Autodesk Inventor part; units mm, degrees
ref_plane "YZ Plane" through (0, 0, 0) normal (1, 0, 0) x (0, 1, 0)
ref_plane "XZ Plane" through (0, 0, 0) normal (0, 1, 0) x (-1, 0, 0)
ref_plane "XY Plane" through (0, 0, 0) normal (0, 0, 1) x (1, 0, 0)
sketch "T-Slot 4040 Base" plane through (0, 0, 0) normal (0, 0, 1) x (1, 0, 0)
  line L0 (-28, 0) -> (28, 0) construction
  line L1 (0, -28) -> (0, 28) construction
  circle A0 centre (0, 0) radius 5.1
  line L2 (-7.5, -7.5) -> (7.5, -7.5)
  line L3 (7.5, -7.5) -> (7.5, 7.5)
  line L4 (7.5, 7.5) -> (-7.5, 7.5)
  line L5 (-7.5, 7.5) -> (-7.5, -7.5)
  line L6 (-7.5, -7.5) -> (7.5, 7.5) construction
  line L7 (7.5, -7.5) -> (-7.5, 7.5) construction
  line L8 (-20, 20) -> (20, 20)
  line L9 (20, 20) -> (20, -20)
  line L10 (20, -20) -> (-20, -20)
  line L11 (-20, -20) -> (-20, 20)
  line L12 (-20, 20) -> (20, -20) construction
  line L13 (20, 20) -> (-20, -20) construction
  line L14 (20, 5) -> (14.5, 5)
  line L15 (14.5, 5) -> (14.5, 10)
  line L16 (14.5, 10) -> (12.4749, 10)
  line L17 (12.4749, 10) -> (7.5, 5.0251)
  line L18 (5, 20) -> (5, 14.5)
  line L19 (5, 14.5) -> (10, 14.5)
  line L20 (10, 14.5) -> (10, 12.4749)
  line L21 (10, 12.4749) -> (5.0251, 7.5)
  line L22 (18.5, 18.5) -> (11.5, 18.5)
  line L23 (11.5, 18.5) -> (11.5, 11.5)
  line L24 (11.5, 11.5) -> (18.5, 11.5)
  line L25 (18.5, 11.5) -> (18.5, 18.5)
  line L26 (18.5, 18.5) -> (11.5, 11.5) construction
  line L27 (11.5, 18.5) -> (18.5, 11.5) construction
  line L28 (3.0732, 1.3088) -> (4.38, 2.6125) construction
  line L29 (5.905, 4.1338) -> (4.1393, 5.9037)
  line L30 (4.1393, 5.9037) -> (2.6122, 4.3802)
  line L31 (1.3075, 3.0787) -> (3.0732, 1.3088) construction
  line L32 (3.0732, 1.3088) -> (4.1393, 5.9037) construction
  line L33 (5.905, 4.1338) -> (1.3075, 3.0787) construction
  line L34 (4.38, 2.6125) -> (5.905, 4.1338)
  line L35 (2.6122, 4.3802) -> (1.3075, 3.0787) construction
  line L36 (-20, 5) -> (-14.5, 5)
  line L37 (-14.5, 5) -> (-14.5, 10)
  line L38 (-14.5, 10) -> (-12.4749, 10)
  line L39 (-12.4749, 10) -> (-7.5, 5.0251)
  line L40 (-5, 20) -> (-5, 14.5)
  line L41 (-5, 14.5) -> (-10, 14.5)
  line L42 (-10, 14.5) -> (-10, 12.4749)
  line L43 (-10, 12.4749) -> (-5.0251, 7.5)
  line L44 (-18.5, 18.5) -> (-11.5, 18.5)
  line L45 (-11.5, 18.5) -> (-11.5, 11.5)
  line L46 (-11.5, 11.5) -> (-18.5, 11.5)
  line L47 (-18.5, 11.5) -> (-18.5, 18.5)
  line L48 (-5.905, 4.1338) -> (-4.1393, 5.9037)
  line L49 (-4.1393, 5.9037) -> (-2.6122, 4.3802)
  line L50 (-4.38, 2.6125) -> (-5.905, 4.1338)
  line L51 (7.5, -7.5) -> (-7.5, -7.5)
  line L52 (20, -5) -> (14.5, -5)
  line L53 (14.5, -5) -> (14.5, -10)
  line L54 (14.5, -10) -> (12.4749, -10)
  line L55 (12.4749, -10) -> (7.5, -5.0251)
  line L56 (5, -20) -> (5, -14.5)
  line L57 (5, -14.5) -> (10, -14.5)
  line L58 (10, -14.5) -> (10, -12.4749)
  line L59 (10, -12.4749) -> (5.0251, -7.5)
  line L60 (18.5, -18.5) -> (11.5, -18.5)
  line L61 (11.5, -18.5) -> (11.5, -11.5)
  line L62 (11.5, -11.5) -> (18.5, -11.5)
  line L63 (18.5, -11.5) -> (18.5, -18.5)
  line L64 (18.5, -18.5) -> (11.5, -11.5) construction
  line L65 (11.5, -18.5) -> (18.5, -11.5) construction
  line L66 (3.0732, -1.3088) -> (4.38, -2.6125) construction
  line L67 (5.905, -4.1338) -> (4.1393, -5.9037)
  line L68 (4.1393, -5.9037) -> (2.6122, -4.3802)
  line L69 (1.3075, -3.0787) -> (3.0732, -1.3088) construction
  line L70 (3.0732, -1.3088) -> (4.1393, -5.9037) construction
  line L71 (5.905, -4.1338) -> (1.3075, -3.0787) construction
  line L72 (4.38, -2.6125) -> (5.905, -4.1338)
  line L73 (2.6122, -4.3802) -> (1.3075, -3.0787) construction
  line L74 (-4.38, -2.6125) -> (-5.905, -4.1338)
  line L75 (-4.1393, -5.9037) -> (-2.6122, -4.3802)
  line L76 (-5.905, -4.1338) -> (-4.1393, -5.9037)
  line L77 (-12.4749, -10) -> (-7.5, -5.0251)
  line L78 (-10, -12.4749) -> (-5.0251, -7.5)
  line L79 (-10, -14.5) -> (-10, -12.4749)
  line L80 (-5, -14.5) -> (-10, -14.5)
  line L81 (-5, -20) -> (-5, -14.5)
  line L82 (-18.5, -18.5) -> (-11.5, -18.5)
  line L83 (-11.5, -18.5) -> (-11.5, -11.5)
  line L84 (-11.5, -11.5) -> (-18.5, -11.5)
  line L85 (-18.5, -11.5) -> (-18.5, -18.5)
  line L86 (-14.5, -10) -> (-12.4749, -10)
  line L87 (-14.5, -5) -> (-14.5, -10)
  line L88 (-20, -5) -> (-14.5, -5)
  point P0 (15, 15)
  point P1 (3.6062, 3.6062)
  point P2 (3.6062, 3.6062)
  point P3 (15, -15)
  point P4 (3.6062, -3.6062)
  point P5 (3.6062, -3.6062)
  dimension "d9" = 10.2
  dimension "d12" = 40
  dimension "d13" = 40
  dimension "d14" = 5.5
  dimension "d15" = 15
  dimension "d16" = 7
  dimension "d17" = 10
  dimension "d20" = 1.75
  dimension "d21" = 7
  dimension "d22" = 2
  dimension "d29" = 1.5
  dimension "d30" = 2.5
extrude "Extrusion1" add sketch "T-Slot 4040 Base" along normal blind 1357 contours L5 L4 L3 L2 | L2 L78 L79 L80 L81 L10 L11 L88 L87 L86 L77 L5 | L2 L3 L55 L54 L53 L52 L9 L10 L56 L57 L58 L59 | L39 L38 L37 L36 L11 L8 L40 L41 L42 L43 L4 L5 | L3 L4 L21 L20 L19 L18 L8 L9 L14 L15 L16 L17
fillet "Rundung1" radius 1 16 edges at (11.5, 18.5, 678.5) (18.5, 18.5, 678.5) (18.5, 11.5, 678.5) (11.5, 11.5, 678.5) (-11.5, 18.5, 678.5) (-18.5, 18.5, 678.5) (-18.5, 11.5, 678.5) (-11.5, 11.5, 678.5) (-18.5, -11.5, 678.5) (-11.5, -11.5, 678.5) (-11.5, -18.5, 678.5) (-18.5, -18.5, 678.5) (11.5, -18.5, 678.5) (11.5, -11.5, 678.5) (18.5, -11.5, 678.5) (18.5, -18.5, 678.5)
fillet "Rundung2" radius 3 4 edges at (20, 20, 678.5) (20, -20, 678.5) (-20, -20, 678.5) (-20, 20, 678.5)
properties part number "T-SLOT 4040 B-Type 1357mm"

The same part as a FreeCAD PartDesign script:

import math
import FreeCAD as App
import Part
import Sketcher
Q = App.Units.Quantity


def edges_at(feature, points):
    """Names of the edges that pass closest to the given points."""
    edges = feature.Shape.Edges
    near = lambda p: min(range(len(edges)), key=lambda i: edges[i].distToShape(Part.Vertex(*p))[0])
    return sorted({f"Edge{near(p) + 1}" for p in points})


def add_polygon(sketch, points):
    """Adds a closed chain of lines whose ends are joined by coincident constraints."""
    first, n = sketch.GeometryCount, len(points)
    for a, b in zip(points, points[1:] + points[:1]):
        sketch.addGeometry(Part.LineSegment(App.Vector(*a, 0), App.Vector(*b, 0)), False)
    for i in range(n):
        sketch.addConstraint(Sketcher.Constraint("Coincident", first + i, 2, first + (i + 1) % n, 1))

doc = App.newDocument("Part")
body = doc.addObject("PartDesign::Body", "Body")

sketch1 = body.newObject("Sketcher::SketchObject", "Sketch")
sketch1.AttachmentSupport = (doc.getObject("XY_Plane"), [""])
sketch1.MapMode = "FlatFace"
add_polygon(sketch1, [(-7.5, 5), (-7.5, -5), (-12.5, -10), (-14.5, -10), (-14.5, -5), (-20, -5), (-20, -20), (-5, -20), (-5, -14.5), (-10, -14.5), (-10, -12.5), (-5, -7.5), (5, -7.5), (10, -12.5), (10, -14.5), (5, -14.5), (5, -20), (20, -20), (20, -5), (14.5, -5), (14.5, -10), (12.5, -10), (7.5, -5), (7.5, 5), (12.5, 10), (14.5, 10), (14.5, 5), (20, 5), (20, 20), (5, 20), (5, 14.5), (10, 14.5), (10, 12.5), (5, 7.5), (-5, 7.5), (-10, 12.5), (-10, 14.5), (-5, 14.5), (-5, 20), (-20, 20), (-20, 5), (-14.5, 5), (-14.5, 10), (-12.5, 10)])
sketch1.addGeometry(Part.ArcOfCircle(Part.Circle(App.Vector(0, 0, 0), App.Vector(0, 0, 1), 5.1), math.radians(-31), math.radians(31)), False)
sketch1.addGeometry(Part.LineSegment(App.Vector(4.4, -2.6, 0), App.Vector(5.9, -4.1, 0)), False)
sketch1.addGeometry(Part.LineSegment(App.Vector(5.9, -4.1, 0), App.Vector(4.1, -5.9, 0)), False)
sketch1.addGeometry(Part.LineSegment(App.Vector(4.1, -5.9, 0), App.Vector(2.6, -4.4, 0)), False)
sketch1.addGeometry(Part.ArcOfCircle(Part.Circle(App.Vector(0, 0, 0), App.Vector(0, 0, 1), 5.1), math.radians(-121), math.radians(-59)), False)
sketch1.addGeometry(Part.LineSegment(App.Vector(-2.6, -4.4, 0), App.Vector(-4.1, -5.9, 0)), False)
sketch1.addGeometry(Part.LineSegment(App.Vector(-4.1, -5.9, 0), App.Vector(-5.9, -4.1, 0)), False)
sketch1.addGeometry(Part.LineSegment(App.Vector(-5.9, -4.1, 0), App.Vector(-4.4, -2.6, 0)), False)
sketch1.addGeometry(Part.ArcOfCircle(Part.Circle(App.Vector(0, 0, 0), App.Vector(0, 0, 1), 5.1), math.radians(149), math.radians(211)), False)
sketch1.addGeometry(Part.LineSegment(App.Vector(-4.4, 2.6, 0), App.Vector(-5.9, 4.1, 0)), False)
sketch1.addGeometry(Part.LineSegment(App.Vector(-5.9, 4.1, 0), App.Vector(-4.1, 5.9, 0)), False)
sketch1.addGeometry(Part.LineSegment(App.Vector(-4.1, 5.9, 0), App.Vector(-2.6, 4.4, 0)), False)
sketch1.addGeometry(Part.ArcOfCircle(Part.Circle(App.Vector(0, 0, 0), App.Vector(0, 0, 1), 5.1), math.radians(59), math.radians(121)), False)
sketch1.addGeometry(Part.LineSegment(App.Vector(2.6, 4.4, 0), App.Vector(4.1, 5.9, 0)), False)
sketch1.addGeometry(Part.LineSegment(App.Vector(4.1, 5.9, 0), App.Vector(5.9, 4.1, 0)), False)
sketch1.addGeometry(Part.LineSegment(App.Vector(5.9, 4.1, 0), App.Vector(4.4, 2.6, 0)), False)
add_polygon(sketch1, [(-18.5, -11.5), (-11.5, -11.5), (-11.5, -18.5), (-18.5, -18.5)])
add_polygon(sketch1, [(-11.5, 18.5), (-11.5, 11.5), (-18.5, 11.5), (-18.5, 18.5)])
add_polygon(sketch1, [(18.5, 11.5), (11.5, 11.5), (11.5, 18.5), (18.5, 18.5)])
add_polygon(sketch1, [(11.5, -18.5), (11.5, -11.5), (18.5, -11.5), (18.5, -18.5)])
sketch1.addConstraint([
    Sketcher.Constraint("Coincident", 44, 1, 45, 1),
    Sketcher.Constraint("Coincident", 45, 2, 46, 1),
    Sketcher.Constraint("Coincident", 46, 2, 47, 1),
    Sketcher.Constraint("Coincident", 47, 2, 48, 2),
    Sketcher.Constraint("Coincident", 48, 1, 49, 1),
    Sketcher.Constraint("Coincident", 49, 2, 50, 1),
    Sketcher.Constraint("Coincident", 50, 2, 51, 1),
    Sketcher.Constraint("Coincident", 51, 2, 52, 2),
    Sketcher.Constraint("Coincident", 52, 1, 53, 1),
    Sketcher.Constraint("Coincident", 53, 2, 54, 1),
    Sketcher.Constraint("Coincident", 54, 2, 55, 1),
    Sketcher.Constraint("Coincident", 55, 2, 56, 2),
    Sketcher.Constraint("Coincident", 56, 1, 57, 1),
    Sketcher.Constraint("Coincident", 57, 2, 58, 1),
    Sketcher.Constraint("Coincident", 58, 2, 59, 1),
    Sketcher.Constraint("Coincident", 59, 2, 44, 2),
    Sketcher.Constraint("Vertical", 0),
    Sketcher.Constraint("Horizontal", 2),
    Sketcher.Constraint("Vertical", 3),
    Sketcher.Constraint("Horizontal", 4),
    Sketcher.Constraint("Vertical", 5),
    Sketcher.Constraint("Horizontal", 6),
    Sketcher.Constraint("Vertical", 7),
    Sketcher.Constraint("Horizontal", 8),
    Sketcher.Constraint("Vertical", 9),
    Sketcher.Constraint("Horizontal", 11),
    Sketcher.Constraint("Vertical", 13),
    Sketcher.Constraint("Horizontal", 14),
    Sketcher.Constraint("Vertical", 15),
    Sketcher.Constraint("Horizontal", 16),
    Sketcher.Constraint("Vertical", 17),
    Sketcher.Constraint("Horizontal", 18),
    Sketcher.Constraint("Vertical", 19),
    Sketcher.Constraint("Horizontal", 20),
    Sketcher.Constraint("Vertical", 22),
    Sketcher.Constraint("Horizontal", 24),
    Sketcher.Constraint("Vertical", 25),
    Sketcher.Constraint("Horizontal", 26),
    Sketcher.Constraint("Vertical", 27),
    Sketcher.Constraint("Horizontal", 28),
    Sketcher.Constraint("Vertical", 29),
    Sketcher.Constraint("Horizontal", 30),
    Sketcher.Constraint("Vertical", 31),
    Sketcher.Constraint("Horizontal", 33),
    Sketcher.Constraint("Vertical", 35),
    Sketcher.Constraint("Horizontal", 36),
    Sketcher.Constraint("Vertical", 37),
    Sketcher.Constraint("Horizontal", 38),
    Sketcher.Constraint("Vertical", 39),
    Sketcher.Constraint("Horizontal", 40),
    Sketcher.Constraint("Vertical", 41),
    Sketcher.Constraint("Horizontal", 42),
    Sketcher.Constraint("Horizontal", 60),
    Sketcher.Constraint("Vertical", 61),
    Sketcher.Constraint("Horizontal", 62),
    Sketcher.Constraint("Vertical", 63),
    Sketcher.Constraint("Vertical", 64),
    Sketcher.Constraint("Horizontal", 65),
    Sketcher.Constraint("Vertical", 66),
    Sketcher.Constraint("Horizontal", 67),
    Sketcher.Constraint("Horizontal", 68),
    Sketcher.Constraint("Vertical", 69),
    Sketcher.Constraint("Horizontal", 70),
    Sketcher.Constraint("Vertical", 71),
    Sketcher.Constraint("Vertical", 72),
    Sketcher.Constraint("Horizontal", 73),
    Sketcher.Constraint("Vertical", 74),
    Sketcher.Constraint("Horizontal", 75),
    Sketcher.Constraint("Coincident", 44, 3, -1, 1),
    Sketcher.Constraint("Coincident", 48, 3, -1, 1),
    Sketcher.Constraint("Coincident", 52, 3, -1, 1),
    Sketcher.Constraint("Coincident", 56, 3, -1, 1),
    Sketcher.Constraint("Equal", 44, 48),
    Sketcher.Constraint("Equal", 48, 52),
    Sketcher.Constraint("Equal", 52, 56),
    Sketcher.Constraint("Symmetric", 0, 2, 22, 2, -1, 1),
    Sketcher.Constraint("Symmetric", 1, 2, 23, 2, -1, 1),
    Sketcher.Constraint("Symmetric", 3, 2, 25, 2, -1, 1),
    Sketcher.Constraint("Symmetric", 5, 2, 27, 2, -1, 1),
    Sketcher.Constraint("Symmetric", 7, 2, 29, 2, -1, 1),
    Sketcher.Constraint("Symmetric", 9, 2, 31, 2, -1, 1),
    Sketcher.Constraint("Symmetric", 10, 2, 32, 2, -1, 1),
    Sketcher.Constraint("Symmetric", 12, 2, 34, 2, -1, 1),
    Sketcher.Constraint("Symmetric", 14, 2, 36, 2, -1, 1),
    Sketcher.Constraint("Symmetric", 16, 2, 38, 2, -1, 1),
    Sketcher.Constraint("Symmetric", 18, 2, 40, 2, -1, 1),
    Sketcher.Constraint("Symmetric", 20, 2, 42, 2, -1, 1),
    Sketcher.Constraint("Symmetric", 45, 2, 53, 2, -1, 1),
    Sketcher.Constraint("Symmetric", 46, 2, 54, 2, -1, 1),
    Sketcher.Constraint("Symmetric", 49, 2, 57, 2, -1, 1),
    Sketcher.Constraint("Symmetric", 50, 2, 58, 2, -1, 1),
    Sketcher.Constraint("Symmetric", 60, 2, 68, 2, -1, 1),
    Sketcher.Constraint("Symmetric", 62, 2, 70, 2, -1, 1),
    Sketcher.Constraint("Symmetric", 64, 2, 72, 2, -1, 1),
    Sketcher.Constraint("Symmetric", 66, 2, 74, 2, -1, 1),
    Sketcher.Constraint("Symmetric", 9, 2, 12, 2, -2),
    Sketcher.Constraint("Symmetric", 7, 2, 14, 2, -2),
    Sketcher.Constraint("Symmetric", 5, 2, 16, 2, -2),
    Sketcher.Constraint("Symmetric", 3, 2, 18, 2, -2),
    Sketcher.Constraint("Symmetric", 1, 2, 20, 2, -2),
    Sketcher.Constraint("Symmetric", 46, 2, 49, 2, -2),
    Sketcher.Constraint("Symmetric", 45, 2, 50, 2, -2),
    Sketcher.Constraint("Symmetric", 64, 2, 68, 2, -2),
    Sketcher.Constraint("Symmetric", 66, 2, 70, 2, -2),
    Sketcher.Constraint("Parallel", 1, 10),
    Sketcher.Constraint("Perpendicular", 10, 12),
    Sketcher.Constraint("Parallel", 12, 21),
    Sketcher.Constraint("Perpendicular", 32, 34),
    Sketcher.Constraint("Parallel", 34, 43),
    Sketcher.Constraint("Perpendicular", 45, 46),
    Sketcher.Constraint("Perpendicular", 46, 47),
    Sketcher.Constraint("Perpendicular", 49, 50),
    Sketcher.Constraint("Perpendicular", 50, 51),
    Sketcher.Constraint("Parallel", 47, 53),
    Sketcher.Constraint("Perpendicular", 54, 55),
    Sketcher.Constraint("Parallel", 51, 57),
    Sketcher.Constraint("Perpendicular", 58, 59),
    Sketcher.Constraint("Horizontal", 0, 2, 21, 2),
    Sketcher.Constraint("Equal", 33, 0),
    Sketcher.Constraint("Equal", 36, 3),
    Sketcher.Constraint("Equal", 38, 5),
    Sketcher.Constraint("Equal", 40, 7),
    Sketcher.Constraint("Equal", 42, 9),
    Sketcher.Constraint("Equal", 75, 61),
    Sketcher.Constraint("Equal", 1, 10),
    Sketcher.Constraint("Radius", 44, Q("5.1 mm")),
    Sketcher.Constraint("DistanceX", 6, 1, 6, 2, Q("15 mm")),
    Sketcher.Constraint("DistanceX", 60, 1, 60, 2, Q("7 mm")),
    Sketcher.Constraint("DistanceX", 4, 2, 4, 1, Q("5.5 mm")),
    Sketcher.Constraint("DistanceY", 1, 2, -1, 1, Q("10 mm")),
    Sketcher.Constraint("Distance", 46, Q("2.5 mm")),
    Sketcher.Constraint("DistanceX", 8, 2, 8, 1, Q("5 mm")),
    Sketcher.Constraint("DistanceX", 0, 2, -1, 1, Q("7.5 mm")),
    Sketcher.Constraint("DistanceX", 60, 2, -1, 1, Q("11.5 mm")),
    Sketcher.Constraint("DistanceY", 60, 2, -1, 1, Q("11.5 mm")),
    Sketcher.Constraint("Angle", 45, Q("-44.9304 deg")),
    Sketcher.Constraint("DistanceX", 2, 2, 2, 1, Q("2.025 mm")),
    Sketcher.Constraint("DistanceX", -1, 1, 44, 1, Q("4.38 mm")),
    Sketcher.Constraint("Distance", 45, Q("2.154 mm")),
])
pad1 = body.newObject("PartDesign::Pad", "Pad")
pad1.Profile = sketch1
pad1.Length = 1357
doc.recompute()

fillet = body.newObject("PartDesign::Fillet", "Fillet")
fillet.Base = (pad1, edges_at(pad1, [
    (11.5, 18.5, 678.5),
    (18.5, 18.5, 678.5),
    (18.5, 11.5, 678.5),
    (11.5, 11.5, 678.5),
    (-11.5, 18.5, 678.5),
    (-18.5, 18.5, 678.5),
    (-18.5, 11.5, 678.5),
    (-11.5, 11.5, 678.5),
    (-18.5, -11.5, 678.5),
    (-11.5, -11.5, 678.5),
    (-11.5, -18.5, 678.5),
    (-18.5, -18.5, 678.5),
    (11.5, -18.5, 678.5),
    (11.5, -11.5, 678.5),
    (18.5, -11.5, 678.5),
    (18.5, -18.5, 678.5),
]))
fillet.Radius = 1
doc.recompute()

fillet2 = body.newObject("PartDesign::Fillet", "Fillet001")
fillet2.Base = (fillet, edges_at(fillet, [
    (20, 20, 678.5),
    (20, -20, 678.5),
    (-20, -20, 678.5),
    (-20, 20, 678.5),
]))
fillet2.Radius = 3

doc.recompute()
